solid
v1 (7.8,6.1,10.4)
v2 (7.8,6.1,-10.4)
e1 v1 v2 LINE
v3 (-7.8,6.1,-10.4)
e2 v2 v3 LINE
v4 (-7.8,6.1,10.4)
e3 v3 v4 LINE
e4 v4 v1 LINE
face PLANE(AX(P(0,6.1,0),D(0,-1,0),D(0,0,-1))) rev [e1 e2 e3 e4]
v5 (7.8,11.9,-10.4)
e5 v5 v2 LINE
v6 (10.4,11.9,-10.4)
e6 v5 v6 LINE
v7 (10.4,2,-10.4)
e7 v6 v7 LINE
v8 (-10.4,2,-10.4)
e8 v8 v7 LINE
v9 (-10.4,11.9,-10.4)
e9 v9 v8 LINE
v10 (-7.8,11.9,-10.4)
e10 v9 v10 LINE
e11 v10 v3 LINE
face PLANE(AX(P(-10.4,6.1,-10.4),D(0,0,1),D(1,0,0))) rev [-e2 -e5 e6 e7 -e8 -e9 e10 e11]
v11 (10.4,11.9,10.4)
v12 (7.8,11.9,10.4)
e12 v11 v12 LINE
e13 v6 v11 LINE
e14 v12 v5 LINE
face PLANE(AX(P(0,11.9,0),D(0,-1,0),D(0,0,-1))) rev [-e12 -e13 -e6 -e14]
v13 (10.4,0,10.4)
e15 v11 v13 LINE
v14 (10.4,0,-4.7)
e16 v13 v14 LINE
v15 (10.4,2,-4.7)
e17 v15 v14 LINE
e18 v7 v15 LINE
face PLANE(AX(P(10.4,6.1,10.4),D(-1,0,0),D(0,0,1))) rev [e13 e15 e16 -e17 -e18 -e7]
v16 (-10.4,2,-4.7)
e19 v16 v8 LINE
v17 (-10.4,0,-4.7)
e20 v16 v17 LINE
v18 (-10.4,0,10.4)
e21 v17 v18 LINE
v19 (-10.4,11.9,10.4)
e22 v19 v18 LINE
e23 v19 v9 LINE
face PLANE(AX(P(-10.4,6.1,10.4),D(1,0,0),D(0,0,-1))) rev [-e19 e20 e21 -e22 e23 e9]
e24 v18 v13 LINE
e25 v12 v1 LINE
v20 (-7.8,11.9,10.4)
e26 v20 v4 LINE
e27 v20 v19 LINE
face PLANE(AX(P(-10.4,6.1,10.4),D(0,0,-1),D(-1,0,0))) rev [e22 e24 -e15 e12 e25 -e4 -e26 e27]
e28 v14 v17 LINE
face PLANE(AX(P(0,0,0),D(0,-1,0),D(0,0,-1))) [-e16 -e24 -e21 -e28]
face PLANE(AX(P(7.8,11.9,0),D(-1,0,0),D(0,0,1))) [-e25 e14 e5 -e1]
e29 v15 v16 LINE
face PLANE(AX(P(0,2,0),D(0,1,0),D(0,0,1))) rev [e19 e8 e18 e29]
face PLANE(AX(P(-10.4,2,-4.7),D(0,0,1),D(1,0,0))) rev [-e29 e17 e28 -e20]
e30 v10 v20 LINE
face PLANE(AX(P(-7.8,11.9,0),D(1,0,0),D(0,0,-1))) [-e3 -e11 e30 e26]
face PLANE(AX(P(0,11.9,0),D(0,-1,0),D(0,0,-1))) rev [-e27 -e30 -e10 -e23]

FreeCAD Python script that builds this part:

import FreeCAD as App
import Part
import Sketcher
from FreeCAD import Vector
Q = App.Units.Quantity

doc = App.newDocument("Part")
params = doc.addObject("Spreadsheet::Sheet", "Params")
for row, (alias, value) in enumerate([
    ("sketch1_width", "20.8 mm"),
    ("pad1_length", "6.1 mm"),
    ("sketch2_width", "2.6 mm"),
    ("sketch2_height", "20.8 mm"),
    ("pad2_length", "11.9 mm"),
    ("sketch3_width", "20.8 mm"),
    ("sketch3_height", "5.7 mm"),
    ("pocket1_length", "2 mm"),
], start=1):
    params.set(f"A{row}", alias)
    params.set(f"B{row}", "=" + value)
    params.setAlias(f"B{row}", alias)

body = doc.addObject("PartDesign::Body", "Body")

sketch1 = doc.addObject("Sketcher::SketchObject", "Sketch")
body.addObject(sketch1)
sketch1.AttachmentSupport = (doc.XZ_Plane, [""])
sketch1.MapMode = "FlatFace"
sketch1.addGeometry(Part.LineSegment(Vector(-10.4, -10.4, 0), Vector(-10.4, 10.4, 0)), False)
sketch1.addGeometry(Part.LineSegment(Vector(-10.4, 10.4, 0), Vector(10.4, 10.4, 0)), False)
sketch1.addGeometry(Part.LineSegment(Vector(10.4, 10.4, 0), Vector(10.4, -10.4, 0)), False)
sketch1.addGeometry(Part.LineSegment(Vector(10.4, -10.4, 0), Vector(-10.4, -10.4, 0)), False)
sketch1.addConstraint(Sketcher.Constraint("Coincident", 0, 2, 1, 1))
sketch1.addConstraint(Sketcher.Constraint("Coincident", 1, 2, 2, 1))
sketch1.addConstraint(Sketcher.Constraint("Coincident", 2, 2, 3, 1))
sketch1.addConstraint(Sketcher.Constraint("Coincident", 3, 2, 0, 1))
sketch1.addConstraint(Sketcher.Constraint("Vertical", 0))
sketch1.addConstraint(Sketcher.Constraint("Horizontal", 1))
sketch1.addConstraint(Sketcher.Constraint("Vertical", 2))
sketch1.addConstraint(Sketcher.Constraint("Horizontal", 3))
sketch1.addConstraint(Sketcher.Constraint("Symmetric", 0, 2, 2, 2, -1, 1))
sketch1.addConstraint(Sketcher.Constraint("Equal", 3, 0))
sketch1.addConstraint(Sketcher.Constraint("DistanceX", 1, 1, 1, 2, Q("20.8 mm")))
sketch1.setExpression("Constraints[10]", "Params.sketch1_width")
pad1 = doc.addObject("PartDesign::Pad", "Pad")
body.addObject(pad1)
pad1.Profile = sketch1
pad1.setExpression("Length", "Params.pad1_length")
pad1.Reversed = True

sketch2 = doc.addObject("Sketcher::SketchObject", "Sketch001")
body.addObject(sketch2)
sketch2.AttachmentSupport = (doc.XZ_Plane, [""])
sketch2.MapMode = "FlatFace"
sketch2.addGeometry(Part.LineSegment(Vector(-10.4, -10.4, 0), Vector(-10.4, 10.4, 0)), False)
sketch2.addGeometry(Part.LineSegment(Vector(-10.4, 10.4, 0), Vector(-7.8, 10.4, 0)), False)
sketch2.addGeometry(Part.LineSegment(Vector(-7.8, 10.4, 0), Vector(-7.8, -10.4, 0)), False)
sketch2.addGeometry(Part.LineSegment(Vector(-7.8, -10.4, 0), Vector(-10.4, -10.4, 0)), False)
sketch2.addGeometry(Part.LineSegment(Vector(7.8, -10.4, 0), Vector(7.8, 10.4, 0)), False)
sketch2.addGeometry(Part.LineSegment(Vector(7.8, 10.4, 0), Vector(10.4, 10.4, 0)), False)
sketch2.addGeometry(Part.LineSegment(Vector(10.4, 10.4, 0), Vector(10.4, -10.4, 0)), False)
sketch2.addGeometry(Part.LineSegment(Vector(10.4, -10.4, 0), Vector(7.8, -10.4, 0)), False)
sketch2.addConstraint(Sketcher.Constraint("Coincident", 0, 2, 1, 1))
sketch2.addConstraint(Sketcher.Constraint("Coincident", 1, 2, 2, 1))
sketch2.addConstraint(Sketcher.Constraint("Coincident", 2, 2, 3, 1))
sketch2.addConstraint(Sketcher.Constraint("Coincident", 3, 2, 0, 1))
sketch2.addConstraint(Sketcher.Constraint("Coincident", 4, 2, 5, 1))
sketch2.addConstraint(Sketcher.Constraint("Coincident", 5, 2, 6, 1))
sketch2.addConstraint(Sketcher.Constraint("Coincident", 6, 2, 7, 1))
sketch2.addConstraint(Sketcher.Constraint("Coincident", 7, 2, 4, 1))
sketch2.addConstraint(Sketcher.Constraint("Vertical", 0))
sketch2.addConstraint(Sketcher.Constraint("Horizontal", 1))
sketch2.addConstraint(Sketcher.Constraint("Vertical", 2))
sketch2.addConstraint(Sketcher.Constraint("Horizontal", 3))
sketch2.addConstraint(Sketcher.Constraint("Vertical", 4))
sketch2.addConstraint(Sketcher.Constraint("Horizontal", 5))
sketch2.addConstraint(Sketcher.Constraint("Vertical", 6))
sketch2.addConstraint(Sketcher.Constraint("Horizontal", 7))
sketch2.addConstraint(Sketcher.Constraint("Symmetric", 2, 2, 4, 2, -1, 1))
sketch2.addConstraint(Sketcher.Constraint("Symmetric", 0, 2, 6, 2, -1, 1))
sketch2.addConstraint(Sketcher.Constraint("Horizontal", 1, 2, 4, 2))
sketch2.addConstraint(Sketcher.Constraint("DistanceX", 1, 1, 1, 2, Q("2.6 mm")))
sketch2.addConstraint(Sketcher.Constraint("DistanceY", 0, 1, 0, 2, Q("20.8 mm")))
sketch2.addConstraint(Sketcher.Constraint("DistanceX", 0, 2, -1, 1, Q("10.4 mm")))
sketch2.setExpression("Constraints[19]", "Params.sketch2_width")
sketch2.setExpression("Constraints[20]", "Params.sketch2_height")
pad2 = doc.addObject("PartDesign::Pad", "Pad001")
body.addObject(pad2)
pad2.Profile = sketch2
pad2.setExpression("Length", "Params.pad2_length")
pad2.Reversed = True

sketch3 = doc.addObject("Sketcher::SketchObject", "Sketch002")
body.addObject(sketch3)
sketch3.AttachmentSupport = (doc.XZ_Plane, [""])
sketch3.MapMode = "FlatFace"
sketch3.addGeometry(Part.LineSegment(Vector(-10.4, -4.7, 0), Vector(-10.4, -10.4, 0)), False)
sketch3.addGeometry(Part.LineSegment(Vector(-10.4, -10.4, 0), Vector(10.4, -10.4, 0)), False)
sketch3.addGeometry(Part.LineSegment(Vector(10.4, -10.4, 0), Vector(10.4, -4.7, 0)), False)
sketch3.addGeometry(Part.LineSegment(Vector(10.4, -4.7, 0), Vector(-10.4, -4.7, 0)), False)
sketch3.addConstraint(Sketcher.Constraint("Coincident", 0, 2, 1, 1))
sketch3.addConstraint(Sketcher.Constraint("Coincident", 1, 2, 2, 1))
sketch3.addConstraint(Sketcher.Constraint("Coincident", 2, 2, 3, 1))
sketch3.addConstraint(Sketcher.Constraint("Coincident", 3, 2, 0, 1))
sketch3.addConstraint(Sketcher.Constraint("Vertical", 0))
sketch3.addConstraint(Sketcher.Constraint("Horizontal", 1))
sketch3.addConstraint(Sketcher.Constraint("Vertical", 2))
sketch3.addConstraint(Sketcher.Constraint("Horizontal", 3))
sketch3.addConstraint(Sketcher.Constraint("DistanceX", 1, 1, 1, 2, Q("20.8 mm")))
sketch3.addConstraint(Sketcher.Constraint("DistanceY", 0, 2, 0, 1, Q("5.7 mm")))
sketch3.addConstraint(Sketcher.Constraint("DistanceX", 0, 2, -1, 1, Q("10.4 mm")))
sketch3.addConstraint(Sketcher.Constraint("DistanceY", 0, 2, -1, 1, Q("10.4 mm")))
sketch3.setExpression("Constraints[8]", "Params.sketch3_width")
sketch3.setExpression("Constraints[9]", "Params.sketch3_height")
pocket1 = doc.addObject("PartDesign::Pocket", "Pocket")
body.addObject(pocket1)
pocket1.Profile = sketch3
pocket1.setExpression("Length", "Params.pocket1_length")

doc.recompute()
